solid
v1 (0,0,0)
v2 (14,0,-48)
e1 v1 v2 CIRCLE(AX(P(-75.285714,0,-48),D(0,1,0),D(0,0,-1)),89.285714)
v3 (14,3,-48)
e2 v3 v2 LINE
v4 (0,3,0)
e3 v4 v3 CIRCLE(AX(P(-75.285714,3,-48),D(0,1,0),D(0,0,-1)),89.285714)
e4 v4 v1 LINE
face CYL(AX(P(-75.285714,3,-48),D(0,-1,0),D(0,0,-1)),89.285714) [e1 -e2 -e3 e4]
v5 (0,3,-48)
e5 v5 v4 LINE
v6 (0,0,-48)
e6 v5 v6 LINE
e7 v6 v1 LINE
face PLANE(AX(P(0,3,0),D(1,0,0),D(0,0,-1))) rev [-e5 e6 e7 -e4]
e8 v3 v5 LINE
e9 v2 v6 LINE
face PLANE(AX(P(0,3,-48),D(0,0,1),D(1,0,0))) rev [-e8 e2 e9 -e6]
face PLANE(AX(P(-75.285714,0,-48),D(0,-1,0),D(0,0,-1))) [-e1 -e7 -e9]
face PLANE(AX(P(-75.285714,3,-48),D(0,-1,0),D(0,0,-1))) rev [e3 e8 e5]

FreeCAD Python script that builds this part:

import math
import FreeCAD as App
import Part
import Sketcher

doc = App.newDocument("Part")
body = doc.addObject("PartDesign::Body", "Body")

# Sketch on XZ plane
sketch1 = body.newObject("Sketcher::SketchObject", "Sketch")
sketch1.AttachmentSupport = (doc.getObject("XZ_Plane"), [""])
sketch1.MapMode = "FlatFace"
sketch1.addGeometry(Part.LineSegment(App.Vector(0, -48, 0), App.Vector(0, 0, 0)), False)
sketch1.addGeometry(Part.ArcOfCircle(Part.Circle(App.Vector(-75.285714, -48, 0), App.Vector(0, 0, 1), 89.285714), math.radians(0), math.radians(32.520409)), False)
sketch1.addGeometry(Part.LineSegment(App.Vector(14, -48, 0), App.Vector(0, -48, 0)), False)
sketch1.addConstraint(Sketcher.Constraint("Coincident", 0, 2, 1, 2))
sketch1.addConstraint(Sketcher.Constraint("Coincident", 1, 1, 2, 1))
sketch1.addConstraint(Sketcher.Constraint("Coincident", 2, 2, 0, 1))
sketch1.addConstraint(Sketcher.Constraint("Vertical", 0))
sketch1.addConstraint(Sketcher.Constraint("Horizontal", 2))
sketch1.addConstraint(Sketcher.Constraint("Coincident", 0, 2, -1, 1))
sketch1.addConstraint(Sketcher.Constraint("DistanceX", 2, 2, 2, 1, 14.0))
sketch1.addConstraint(Sketcher.Constraint("DistanceY", 0, 1, 0, 2, 48.0))
sketch1.addConstraint(Sketcher.Constraint("DistanceY", 1, 3, -1, 1, 48.0))
pad1 = body.newObject("PartDesign::Pad", "Pad")
pad1.Profile = sketch1
pad1.Length = 3
pad1.Reversed = True

doc.recompute()
